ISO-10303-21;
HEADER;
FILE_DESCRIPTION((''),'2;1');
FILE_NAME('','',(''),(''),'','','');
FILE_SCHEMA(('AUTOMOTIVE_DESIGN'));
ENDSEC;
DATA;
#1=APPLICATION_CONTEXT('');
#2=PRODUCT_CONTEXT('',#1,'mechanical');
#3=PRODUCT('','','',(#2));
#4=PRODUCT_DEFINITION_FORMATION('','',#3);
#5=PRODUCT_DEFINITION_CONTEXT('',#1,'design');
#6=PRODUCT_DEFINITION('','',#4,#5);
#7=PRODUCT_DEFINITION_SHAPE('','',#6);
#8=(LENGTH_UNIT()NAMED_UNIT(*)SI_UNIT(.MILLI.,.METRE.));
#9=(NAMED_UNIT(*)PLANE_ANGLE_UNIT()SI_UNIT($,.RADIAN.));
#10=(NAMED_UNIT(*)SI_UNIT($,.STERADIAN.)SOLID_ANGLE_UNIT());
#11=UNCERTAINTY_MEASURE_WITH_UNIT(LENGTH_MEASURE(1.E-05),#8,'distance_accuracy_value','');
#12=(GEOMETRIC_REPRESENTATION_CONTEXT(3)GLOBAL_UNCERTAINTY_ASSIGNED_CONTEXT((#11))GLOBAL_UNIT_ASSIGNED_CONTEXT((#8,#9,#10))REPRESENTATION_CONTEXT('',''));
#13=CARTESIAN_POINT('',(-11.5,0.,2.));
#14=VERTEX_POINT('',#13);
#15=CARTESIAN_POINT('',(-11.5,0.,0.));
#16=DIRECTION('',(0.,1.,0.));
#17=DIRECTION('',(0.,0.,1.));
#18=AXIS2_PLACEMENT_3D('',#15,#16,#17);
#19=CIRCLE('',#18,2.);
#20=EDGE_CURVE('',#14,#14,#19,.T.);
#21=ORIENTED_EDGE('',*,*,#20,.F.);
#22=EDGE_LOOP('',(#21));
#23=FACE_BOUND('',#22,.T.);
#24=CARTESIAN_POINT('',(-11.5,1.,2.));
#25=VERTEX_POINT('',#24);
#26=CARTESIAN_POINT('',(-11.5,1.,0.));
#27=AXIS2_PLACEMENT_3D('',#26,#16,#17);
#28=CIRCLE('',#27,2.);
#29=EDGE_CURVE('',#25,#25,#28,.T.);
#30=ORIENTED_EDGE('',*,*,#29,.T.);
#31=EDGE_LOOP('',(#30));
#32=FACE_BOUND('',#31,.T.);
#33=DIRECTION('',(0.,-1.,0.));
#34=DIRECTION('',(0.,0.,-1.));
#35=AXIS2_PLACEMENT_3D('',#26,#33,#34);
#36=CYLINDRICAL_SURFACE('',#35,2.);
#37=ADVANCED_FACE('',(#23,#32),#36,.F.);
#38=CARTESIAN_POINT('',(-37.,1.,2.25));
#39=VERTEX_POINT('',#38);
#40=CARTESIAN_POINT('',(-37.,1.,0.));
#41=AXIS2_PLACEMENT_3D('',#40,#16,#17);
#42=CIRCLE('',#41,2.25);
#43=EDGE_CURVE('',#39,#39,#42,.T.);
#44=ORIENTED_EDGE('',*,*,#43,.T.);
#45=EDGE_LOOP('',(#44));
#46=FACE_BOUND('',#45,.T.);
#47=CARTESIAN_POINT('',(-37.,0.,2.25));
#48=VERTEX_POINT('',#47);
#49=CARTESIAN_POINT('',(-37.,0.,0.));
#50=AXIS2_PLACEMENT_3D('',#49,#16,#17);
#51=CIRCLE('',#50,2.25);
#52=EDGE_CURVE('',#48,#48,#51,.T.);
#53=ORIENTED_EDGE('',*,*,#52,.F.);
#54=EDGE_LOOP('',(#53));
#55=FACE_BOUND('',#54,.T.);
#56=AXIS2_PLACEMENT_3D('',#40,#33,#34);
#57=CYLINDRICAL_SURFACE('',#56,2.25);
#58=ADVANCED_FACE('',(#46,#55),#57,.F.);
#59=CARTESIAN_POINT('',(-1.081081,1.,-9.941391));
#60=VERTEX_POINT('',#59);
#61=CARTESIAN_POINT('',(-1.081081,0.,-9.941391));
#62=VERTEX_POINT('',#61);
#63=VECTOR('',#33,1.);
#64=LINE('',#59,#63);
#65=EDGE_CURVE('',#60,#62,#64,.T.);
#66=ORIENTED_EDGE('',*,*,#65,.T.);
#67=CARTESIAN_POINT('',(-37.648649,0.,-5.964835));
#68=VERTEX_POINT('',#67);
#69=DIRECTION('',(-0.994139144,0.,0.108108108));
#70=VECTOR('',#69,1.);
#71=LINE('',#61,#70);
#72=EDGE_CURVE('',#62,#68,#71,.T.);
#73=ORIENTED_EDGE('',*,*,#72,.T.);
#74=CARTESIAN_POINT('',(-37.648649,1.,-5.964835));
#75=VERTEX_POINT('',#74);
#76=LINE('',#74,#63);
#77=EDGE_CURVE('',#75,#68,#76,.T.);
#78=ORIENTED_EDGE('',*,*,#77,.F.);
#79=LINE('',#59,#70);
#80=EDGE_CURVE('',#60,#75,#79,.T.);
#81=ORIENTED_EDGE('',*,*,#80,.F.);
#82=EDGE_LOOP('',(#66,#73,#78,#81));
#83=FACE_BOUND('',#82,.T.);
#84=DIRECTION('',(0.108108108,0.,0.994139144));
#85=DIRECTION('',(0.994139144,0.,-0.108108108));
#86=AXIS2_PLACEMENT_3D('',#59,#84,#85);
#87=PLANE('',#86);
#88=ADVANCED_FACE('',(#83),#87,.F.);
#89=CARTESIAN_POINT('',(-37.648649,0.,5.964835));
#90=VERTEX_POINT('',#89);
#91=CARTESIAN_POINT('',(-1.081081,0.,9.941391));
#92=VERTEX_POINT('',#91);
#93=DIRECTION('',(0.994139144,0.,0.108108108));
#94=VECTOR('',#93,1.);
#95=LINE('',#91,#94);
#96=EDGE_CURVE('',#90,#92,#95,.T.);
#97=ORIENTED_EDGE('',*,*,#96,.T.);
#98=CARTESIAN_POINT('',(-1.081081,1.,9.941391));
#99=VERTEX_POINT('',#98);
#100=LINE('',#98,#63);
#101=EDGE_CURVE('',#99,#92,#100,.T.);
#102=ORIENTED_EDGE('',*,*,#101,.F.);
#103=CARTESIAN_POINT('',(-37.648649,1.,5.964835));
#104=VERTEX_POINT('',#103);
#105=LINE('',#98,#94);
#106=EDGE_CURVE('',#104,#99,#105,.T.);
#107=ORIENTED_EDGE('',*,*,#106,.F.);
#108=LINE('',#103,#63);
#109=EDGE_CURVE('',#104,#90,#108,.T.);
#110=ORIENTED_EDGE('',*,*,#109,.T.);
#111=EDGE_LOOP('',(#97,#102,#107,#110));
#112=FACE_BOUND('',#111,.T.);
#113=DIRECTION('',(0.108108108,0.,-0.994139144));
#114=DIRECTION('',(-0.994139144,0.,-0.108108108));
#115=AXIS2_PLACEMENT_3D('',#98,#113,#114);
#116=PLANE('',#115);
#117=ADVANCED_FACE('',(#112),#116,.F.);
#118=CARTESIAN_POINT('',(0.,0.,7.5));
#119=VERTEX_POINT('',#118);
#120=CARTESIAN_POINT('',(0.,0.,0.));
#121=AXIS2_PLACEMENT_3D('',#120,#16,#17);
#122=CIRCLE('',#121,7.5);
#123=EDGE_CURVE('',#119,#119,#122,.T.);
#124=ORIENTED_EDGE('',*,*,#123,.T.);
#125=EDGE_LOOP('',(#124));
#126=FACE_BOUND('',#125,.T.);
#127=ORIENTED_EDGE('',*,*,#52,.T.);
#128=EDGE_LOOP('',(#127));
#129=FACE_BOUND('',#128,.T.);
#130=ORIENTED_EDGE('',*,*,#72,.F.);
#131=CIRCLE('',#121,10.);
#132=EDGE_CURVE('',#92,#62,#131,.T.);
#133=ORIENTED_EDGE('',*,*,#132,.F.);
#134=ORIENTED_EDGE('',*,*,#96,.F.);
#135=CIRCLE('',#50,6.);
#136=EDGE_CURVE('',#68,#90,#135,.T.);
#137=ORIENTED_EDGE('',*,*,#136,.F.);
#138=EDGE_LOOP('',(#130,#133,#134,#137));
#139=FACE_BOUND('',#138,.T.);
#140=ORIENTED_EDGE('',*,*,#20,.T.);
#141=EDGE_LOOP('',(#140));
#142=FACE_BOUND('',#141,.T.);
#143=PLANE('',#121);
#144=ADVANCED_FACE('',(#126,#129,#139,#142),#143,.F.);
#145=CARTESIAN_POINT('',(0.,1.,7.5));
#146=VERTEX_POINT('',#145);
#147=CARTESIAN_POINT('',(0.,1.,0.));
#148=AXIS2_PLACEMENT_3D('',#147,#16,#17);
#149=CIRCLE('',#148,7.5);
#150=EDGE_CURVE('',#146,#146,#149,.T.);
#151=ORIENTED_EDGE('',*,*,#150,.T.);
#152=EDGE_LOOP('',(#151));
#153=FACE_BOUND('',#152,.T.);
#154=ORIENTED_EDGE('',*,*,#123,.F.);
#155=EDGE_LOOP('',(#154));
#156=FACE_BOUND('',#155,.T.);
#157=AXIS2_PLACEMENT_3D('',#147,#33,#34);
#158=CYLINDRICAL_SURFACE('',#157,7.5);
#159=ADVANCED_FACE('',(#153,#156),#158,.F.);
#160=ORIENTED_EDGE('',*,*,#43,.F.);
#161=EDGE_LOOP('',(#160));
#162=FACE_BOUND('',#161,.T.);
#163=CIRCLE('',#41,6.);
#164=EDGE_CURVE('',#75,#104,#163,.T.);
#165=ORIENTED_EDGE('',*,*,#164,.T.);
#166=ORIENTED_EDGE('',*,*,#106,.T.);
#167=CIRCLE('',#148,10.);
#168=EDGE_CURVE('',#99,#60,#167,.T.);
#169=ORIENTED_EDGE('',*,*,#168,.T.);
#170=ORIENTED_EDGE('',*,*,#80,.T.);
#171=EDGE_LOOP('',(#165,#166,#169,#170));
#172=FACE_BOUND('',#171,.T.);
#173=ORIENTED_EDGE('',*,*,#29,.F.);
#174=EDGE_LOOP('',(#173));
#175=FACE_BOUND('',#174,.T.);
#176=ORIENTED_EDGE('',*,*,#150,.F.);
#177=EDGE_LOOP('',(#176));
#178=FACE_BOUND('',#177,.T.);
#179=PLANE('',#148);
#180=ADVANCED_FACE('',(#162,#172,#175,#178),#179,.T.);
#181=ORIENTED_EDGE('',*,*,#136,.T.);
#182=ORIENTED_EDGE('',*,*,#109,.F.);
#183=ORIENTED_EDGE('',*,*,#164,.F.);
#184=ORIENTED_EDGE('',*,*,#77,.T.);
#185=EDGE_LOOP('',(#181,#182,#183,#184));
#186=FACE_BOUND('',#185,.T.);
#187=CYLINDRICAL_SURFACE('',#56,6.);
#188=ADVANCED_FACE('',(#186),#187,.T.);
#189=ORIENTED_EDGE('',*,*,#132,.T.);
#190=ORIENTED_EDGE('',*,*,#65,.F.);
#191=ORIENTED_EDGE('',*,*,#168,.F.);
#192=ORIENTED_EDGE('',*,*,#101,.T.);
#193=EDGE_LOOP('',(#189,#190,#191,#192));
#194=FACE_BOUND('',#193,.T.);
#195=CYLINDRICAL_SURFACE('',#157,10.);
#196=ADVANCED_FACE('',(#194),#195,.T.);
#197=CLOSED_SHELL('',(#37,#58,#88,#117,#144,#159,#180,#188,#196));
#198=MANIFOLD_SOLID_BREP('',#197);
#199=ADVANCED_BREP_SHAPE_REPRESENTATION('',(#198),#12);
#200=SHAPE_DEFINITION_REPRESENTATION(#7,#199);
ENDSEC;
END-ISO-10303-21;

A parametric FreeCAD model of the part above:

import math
import FreeCAD as App
import Part
import Sketcher
Q = App.Units.Quantity

doc = App.newDocument("Part")
body = doc.addObject("PartDesign::Body", "Body")

sketch1 = body.newObject("Sketcher::SketchObject", "Sketch")
sketch1.AttachmentSupport = (doc.getObject("XZ_Plane"), [""])
sketch1.MapMode = "FlatFace"
sketch1.addGeometry([
    Part.LineSegment(App.Vector(-1.081081, -9.941391, 0), App.Vector(-37.648649, -5.964835, 0)),
    Part.ArcOfCircle(Part.Circle(App.Vector(-37, 0, 0), App.Vector(0, 0, 1), 6), math.radians(96.206268), math.radians(263.793732)),
    Part.LineSegment(App.Vector(-37.648649, 5.964835, 0), App.Vector(-1.081081, 9.941391, 0)),
    Part.ArcOfCircle(Part.Circle(App.Vector(0, 0, 0), App.Vector(0, 0, 1), 10), math.radians(-96.206268), math.radians(96.206268)),
    Part.Circle(App.Vector(-37, 0, 0), App.Vector(0, 0, 1), 2.25),
    Part.Circle(App.Vector(-11.5, 0, 0), App.Vector(0, 0, 1), 2),
    Part.Circle(App.Vector(0, 0, 0), App.Vector(0, 0, 1), 7.5),
], False)
sketch1.addConstraint([
    Sketcher.Constraint("Tangent", 0, 2, 1, 2),
    Sketcher.Constraint("Tangent", 1, 1, 2, 1),
    Sketcher.Constraint("Tangent", 2, 2, 3, 2),
    Sketcher.Constraint("Tangent", 3, 1, 0, 1),
    Sketcher.Constraint("Coincident", 3, 3, -1, 1),
    Sketcher.Constraint("Coincident", 6, 3, -1, 1),
    Sketcher.Constraint("Coincident", 4, 3, 1, 3),
    Sketcher.Constraint("PointOnObject", 1, 3, -1),
    Sketcher.Constraint("PointOnObject", 5, 3, -1),
    Sketcher.Constraint("Diameter", 5, Q("4 mm")),
    Sketcher.Constraint("Diameter", 6, Q("15 mm")),
    Sketcher.Constraint("Radius", 1, Q("6 mm")),
    Sketcher.Constraint("Radius", 3, Q("10 mm")),
    Sketcher.Constraint("Diameter", 4, Q("4.5 mm")),
    Sketcher.Constraint("DistanceX", 1, 3, -1, 1, Q("37 mm")),
    Sketcher.Constraint("DistanceX", 5, 3, -1, 1, Q("11.5 mm")),
])
pad1 = body.newObject("PartDesign::Pad", "Pad")
pad1.Profile = sketch1
pad1.Length = 1
pad1.Reversed = True

doc.recompute()
